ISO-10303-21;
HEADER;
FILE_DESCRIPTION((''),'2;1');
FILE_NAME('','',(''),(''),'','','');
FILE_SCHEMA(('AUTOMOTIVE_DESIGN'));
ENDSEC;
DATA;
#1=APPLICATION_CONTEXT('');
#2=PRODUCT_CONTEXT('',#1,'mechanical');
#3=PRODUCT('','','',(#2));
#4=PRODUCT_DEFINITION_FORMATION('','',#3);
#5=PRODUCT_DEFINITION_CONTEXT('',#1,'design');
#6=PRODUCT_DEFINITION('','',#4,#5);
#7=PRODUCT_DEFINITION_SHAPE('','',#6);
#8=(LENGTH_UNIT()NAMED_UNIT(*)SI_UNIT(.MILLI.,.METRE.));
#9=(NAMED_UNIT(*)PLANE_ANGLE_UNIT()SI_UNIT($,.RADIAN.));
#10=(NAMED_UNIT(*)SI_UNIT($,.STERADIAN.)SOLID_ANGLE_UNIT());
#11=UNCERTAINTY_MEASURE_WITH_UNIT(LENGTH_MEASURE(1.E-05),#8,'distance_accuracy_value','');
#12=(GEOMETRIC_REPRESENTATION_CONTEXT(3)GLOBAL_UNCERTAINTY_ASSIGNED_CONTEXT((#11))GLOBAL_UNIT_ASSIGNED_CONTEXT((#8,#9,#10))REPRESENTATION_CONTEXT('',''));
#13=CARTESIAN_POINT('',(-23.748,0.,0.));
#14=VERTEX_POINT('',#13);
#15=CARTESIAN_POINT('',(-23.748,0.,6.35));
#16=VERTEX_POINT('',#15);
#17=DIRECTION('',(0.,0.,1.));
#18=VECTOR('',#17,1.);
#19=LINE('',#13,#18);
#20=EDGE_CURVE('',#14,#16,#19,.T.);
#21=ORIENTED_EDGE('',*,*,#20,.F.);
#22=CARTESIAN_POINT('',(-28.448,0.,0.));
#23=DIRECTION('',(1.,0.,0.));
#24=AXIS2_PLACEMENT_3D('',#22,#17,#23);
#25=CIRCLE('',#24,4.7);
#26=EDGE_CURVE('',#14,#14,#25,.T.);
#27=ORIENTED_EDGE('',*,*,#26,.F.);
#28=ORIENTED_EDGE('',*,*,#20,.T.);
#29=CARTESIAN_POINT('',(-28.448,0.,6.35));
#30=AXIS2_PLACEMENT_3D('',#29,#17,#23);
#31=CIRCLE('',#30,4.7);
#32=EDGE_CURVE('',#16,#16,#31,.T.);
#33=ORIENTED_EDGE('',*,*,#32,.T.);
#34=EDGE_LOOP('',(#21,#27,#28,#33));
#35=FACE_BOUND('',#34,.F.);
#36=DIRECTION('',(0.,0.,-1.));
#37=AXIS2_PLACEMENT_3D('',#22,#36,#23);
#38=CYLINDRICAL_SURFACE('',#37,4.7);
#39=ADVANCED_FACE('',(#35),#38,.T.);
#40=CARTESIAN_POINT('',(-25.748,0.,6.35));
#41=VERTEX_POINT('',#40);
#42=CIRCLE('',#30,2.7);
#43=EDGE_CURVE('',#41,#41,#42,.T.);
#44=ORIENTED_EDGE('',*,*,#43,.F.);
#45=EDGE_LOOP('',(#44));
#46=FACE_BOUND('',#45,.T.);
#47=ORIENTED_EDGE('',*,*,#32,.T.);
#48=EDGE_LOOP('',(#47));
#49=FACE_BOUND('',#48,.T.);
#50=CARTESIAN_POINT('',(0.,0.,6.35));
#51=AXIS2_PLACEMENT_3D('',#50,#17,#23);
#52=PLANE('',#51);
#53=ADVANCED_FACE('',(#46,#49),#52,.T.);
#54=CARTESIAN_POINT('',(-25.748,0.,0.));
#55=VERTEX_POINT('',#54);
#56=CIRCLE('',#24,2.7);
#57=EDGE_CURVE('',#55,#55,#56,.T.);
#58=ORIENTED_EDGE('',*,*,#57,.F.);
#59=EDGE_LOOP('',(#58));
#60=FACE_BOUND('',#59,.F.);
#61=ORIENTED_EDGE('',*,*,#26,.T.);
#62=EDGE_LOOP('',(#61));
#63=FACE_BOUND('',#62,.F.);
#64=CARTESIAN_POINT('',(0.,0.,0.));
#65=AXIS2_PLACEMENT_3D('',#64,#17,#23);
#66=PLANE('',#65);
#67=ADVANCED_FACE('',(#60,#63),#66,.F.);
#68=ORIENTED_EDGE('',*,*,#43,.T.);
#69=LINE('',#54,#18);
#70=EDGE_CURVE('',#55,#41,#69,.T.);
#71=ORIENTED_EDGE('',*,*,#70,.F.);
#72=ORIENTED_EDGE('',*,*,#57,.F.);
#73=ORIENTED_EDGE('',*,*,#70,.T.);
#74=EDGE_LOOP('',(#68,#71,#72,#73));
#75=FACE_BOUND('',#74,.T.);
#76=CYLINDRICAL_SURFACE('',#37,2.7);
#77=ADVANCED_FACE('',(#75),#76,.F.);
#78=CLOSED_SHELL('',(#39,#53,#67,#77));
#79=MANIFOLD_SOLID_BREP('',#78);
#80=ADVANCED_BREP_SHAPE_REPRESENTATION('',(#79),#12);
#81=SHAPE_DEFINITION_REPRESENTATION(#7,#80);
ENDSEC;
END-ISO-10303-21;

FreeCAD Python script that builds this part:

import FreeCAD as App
import Part
import Sketcher
from FreeCAD import Vector

doc = App.newDocument("Part")
body = doc.addObject("PartDesign::Body", "Body")

sketch1 = body.newObject("Sketcher::SketchObject", "Sketch")
sketch1.AttachmentSupport = (doc.getObject("XY_Plane"), [""])
sketch1.MapMode = "FlatFace"
sketch1.addGeometry(Part.Circle(Vector(-28.4, 0, 0), Vector(0, 0, 1), 4.7), False)
sketch1.addGeometry(Part.Circle(Vector(-28.4, 0, 0), Vector(0, 0, 1), 2.7), False)
sketch1.addConstraint(Sketcher.Constraint("Coincident", 1, 3, 0, 3))
sketch1.addConstraint(Sketcher.Constraint("PointOnObject", 0, 3, -1))
sketch1.addConstraint(Sketcher.Constraint("Diameter", 0, 9.4))
sketch1.addConstraint(Sketcher.Constraint("Diameter", 1, 5.4))
sketch1.addConstraint(Sketcher.Constraint("DistanceX", 0, 3, -1, 1, 28.448))
pad1 = body.newObject("PartDesign::Pad", "Pad")
pad1.Profile = sketch1
pad1.Length = 6.35

doc.recompute()
